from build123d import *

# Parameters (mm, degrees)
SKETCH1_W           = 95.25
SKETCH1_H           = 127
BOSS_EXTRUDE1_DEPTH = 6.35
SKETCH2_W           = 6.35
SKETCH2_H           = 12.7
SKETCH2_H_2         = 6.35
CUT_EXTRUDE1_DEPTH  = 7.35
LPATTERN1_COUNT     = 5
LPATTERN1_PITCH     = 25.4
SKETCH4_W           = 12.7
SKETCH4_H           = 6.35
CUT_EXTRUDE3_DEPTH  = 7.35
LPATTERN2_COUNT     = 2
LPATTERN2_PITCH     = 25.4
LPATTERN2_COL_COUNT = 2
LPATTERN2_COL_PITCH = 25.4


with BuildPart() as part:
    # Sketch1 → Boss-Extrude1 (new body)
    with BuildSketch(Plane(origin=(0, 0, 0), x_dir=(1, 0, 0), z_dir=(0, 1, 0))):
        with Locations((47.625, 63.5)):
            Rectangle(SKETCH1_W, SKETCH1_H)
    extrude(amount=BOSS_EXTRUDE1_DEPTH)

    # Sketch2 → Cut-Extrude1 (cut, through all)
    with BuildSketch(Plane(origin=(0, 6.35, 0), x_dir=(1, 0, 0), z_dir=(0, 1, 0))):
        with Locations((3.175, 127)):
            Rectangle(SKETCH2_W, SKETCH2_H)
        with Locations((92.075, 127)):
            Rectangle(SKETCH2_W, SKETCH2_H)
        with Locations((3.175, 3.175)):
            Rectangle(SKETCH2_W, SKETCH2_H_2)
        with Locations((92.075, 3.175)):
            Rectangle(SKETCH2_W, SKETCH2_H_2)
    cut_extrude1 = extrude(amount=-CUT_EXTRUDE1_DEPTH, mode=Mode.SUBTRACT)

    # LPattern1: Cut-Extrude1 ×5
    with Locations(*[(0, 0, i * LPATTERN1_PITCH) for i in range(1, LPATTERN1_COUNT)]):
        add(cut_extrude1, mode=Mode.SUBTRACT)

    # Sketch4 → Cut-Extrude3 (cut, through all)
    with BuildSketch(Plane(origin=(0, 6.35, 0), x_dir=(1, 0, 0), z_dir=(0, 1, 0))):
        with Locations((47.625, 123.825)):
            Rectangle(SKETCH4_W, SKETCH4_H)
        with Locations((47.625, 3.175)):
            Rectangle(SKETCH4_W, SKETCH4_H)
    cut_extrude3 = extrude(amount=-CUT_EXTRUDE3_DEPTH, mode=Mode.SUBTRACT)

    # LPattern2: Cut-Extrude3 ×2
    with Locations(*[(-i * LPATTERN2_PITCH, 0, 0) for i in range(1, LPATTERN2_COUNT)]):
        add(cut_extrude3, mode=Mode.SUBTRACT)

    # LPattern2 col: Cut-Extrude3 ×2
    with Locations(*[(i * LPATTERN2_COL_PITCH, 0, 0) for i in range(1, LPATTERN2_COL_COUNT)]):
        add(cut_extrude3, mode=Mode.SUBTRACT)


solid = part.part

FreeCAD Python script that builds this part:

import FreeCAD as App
import Part
import Sketcher
Q = App.Units.Quantity


def add_polygon(sketch, points):
    """Adds a closed chain of lines whose ends are joined by coincident constraints."""
    first, n = sketch.GeometryCount, len(points)
    for a, b in zip(points, points[1:] + points[:1]):
        sketch.addGeometry(Part.LineSegment(App.Vector(*a, 0), App.Vector(*b, 0)), False)
    for i in range(n):
        sketch.addConstraint(Sketcher.Constraint("Coincident", first + i, 2, first + (i + 1) % n, 1))

doc = App.newDocument("Part")
body = doc.addObject("PartDesign::Body", "Body")

sketch1 = body.newObject("Sketcher::SketchObject", "Sketch")
sketch1.AttachmentSupport = (doc.getObject("XZ_Plane"), [""])
sketch1.MapMode = "FlatFace"
add_polygon(sketch1, [(0, -127), (0, 0), (95.25, 0), (95.25, -127)])
sketch1.addConstraint(Sketcher.Constraint("Vertical", 0))
sketch1.addConstraint(Sketcher.Constraint("Horizontal", 1))
sketch1.addConstraint(Sketcher.Constraint("Vertical", 2))
sketch1.addConstraint(Sketcher.Constraint("Horizontal", 3))
sketch1.addConstraint(Sketcher.Constraint("Coincident", 0, 2, -1, 1))
sketch1.addConstraint(Sketcher.Constraint("DistanceY", 0, 1, 0, 2, Q("5 in")))
sketch1.addConstraint(Sketcher.Constraint("DistanceX", 1, 1, 1, 2, Q("3.75 in")))
pad1 = body.newObject("PartDesign::Pad", "Pad")
pad1.Profile = sketch1
pad1.Length = Q("0.25 in")
pad1.Reversed = True

sketch2 = body.newObject("Sketcher::SketchObject", "Sketch001")
sketch2.AttachmentSupport = (doc.getObject("XZ_Plane"), [""])
sketch2.MapMode = "FlatFace"
sketch2.AttachmentOffset = App.Placement(App.Vector(0, 0, -0.25 * 25.4), App.Rotation())
add_polygon(sketch2, [(0, -133.35), (0, -120.65), (6.35, -120.65), (6.35, -133.35)])
add_polygon(sketch2, [(88.9, -133.35), (88.9, -120.65), (95.25, -120.65), (95.25, -133.35)])
add_polygon(sketch2, [(0, -6.35), (0, 0), (6.35, 0), (6.35, -6.35)])
add_polygon(sketch2, [(88.9, -6.35), (88.9, 0), (95.25, 0), (95.25, -6.35)])
sketch2.addConstraint(Sketcher.Constraint("Vertical", 0))
sketch2.addConstraint(Sketcher.Constraint("Horizontal", 1))
sketch2.addConstraint(Sketcher.Constraint("Vertical", 2))
sketch2.addConstraint(Sketcher.Constraint("Horizontal", 3))
sketch2.addConstraint(Sketcher.Constraint("Vertical", 4))
sketch2.addConstraint(Sketcher.Constraint("Horizontal", 5))
sketch2.addConstraint(Sketcher.Constraint("Vertical", 6))
sketch2.addConstraint(Sketcher.Constraint("Horizontal", 7))
sketch2.addConstraint(Sketcher.Constraint("Vertical", 8))
sketch2.addConstraint(Sketcher.Constraint("Horizontal", 9))
sketch2.addConstraint(Sketcher.Constraint("Vertical", 10))
sketch2.addConstraint(Sketcher.Constraint("Horizontal", 11))
sketch2.addConstraint(Sketcher.Constraint("Vertical", 12))
sketch2.addConstraint(Sketcher.Constraint("Horizontal", 13))
sketch2.addConstraint(Sketcher.Constraint("Vertical", 14))
sketch2.addConstraint(Sketcher.Constraint("Horizontal", 15))
sketch2.addConstraint(Sketcher.Constraint("Coincident", 8, 2, -1, 1))
sketch2.addConstraint(Sketcher.Constraint("PointOnObject", 0, 2, -2))
sketch2.addConstraint(Sketcher.Constraint("PointOnObject", 12, 2, -1))
sketch2.addConstraint(Sketcher.Constraint("Horizontal", 1, 2, 4, 2))
sketch2.addConstraint(Sketcher.Constraint("Horizontal", 3, 2, 6, 2))
sketch2.addConstraint(Sketcher.Constraint("Horizontal", 11, 2, 14, 2))
sketch2.addConstraint(Sketcher.Constraint("Vertical", 2, 2, 9, 2))
sketch2.addConstraint(Sketcher.Constraint("Vertical", 7, 2, 12, 2))
sketch2.addConstraint(Sketcher.Constraint("Vertical", 6, 2, 13, 2))
sketch2.addConstraint(Sketcher.Constraint("Equal", 3, 5))
sketch2.addConstraint(Sketcher.Constraint("Equal", 15, 8))
sketch2.addConstraint(Sketcher.Constraint("DistanceY", 0, 1, 0, 2, Q("0.5 in")))
sketch2.addConstraint(Sketcher.Constraint("DistanceY", 2, 2, 10, 2, Q("5 in")))
sketch2.addConstraint(Sketcher.Constraint("DistanceX", 1, 1, 1, 2, Q("0.25 in")))
sketch2.addConstraint(Sketcher.Constraint("DistanceX", -1, 1, 4, 2, Q("3.5 in")))
pocket1 = body.newObject("PartDesign::Pocket", "Pocket")
pocket1.Profile = sketch2
pocket1.Type = "ThroughAll"
pocket1.Reversed = True
doc.recompute()

linearpattern = body.newObject("PartDesign::LinearPattern", "LinearPattern")
linearpattern.Originals = [pocket1]
linearpattern.Direction = (doc.getObject("Z_Axis"), [""])
linearpattern.Mode = "offset"
linearpattern.Offset = Q("1 in")
linearpattern.Occurrences = 5
body.Tip = linearpattern

sketch3 = body.newObject("Sketcher::SketchObject", "Sketch002")
sketch3.AttachmentSupport = (doc.getObject("XZ_Plane"), [""])
sketch3.MapMode = "FlatFace"
sketch3.AttachmentOffset = App.Placement(App.Vector(0, 0, -0.25 * 25.4), App.Rotation())
add_polygon(sketch3, [(41.275, -127), (41.275, -120.65), (53.975, -120.65), (53.975, -127)])
add_polygon(sketch3, [(41.275, -6.35), (41.275, 0), (53.975, 0), (53.975, -6.35)])
sketch3.addConstraint(Sketcher.Constraint("Vertical", 0))
sketch3.addConstraint(Sketcher.Constraint("Horizontal", 1))
sketch3.addConstraint(Sketcher.Constraint("Vertical", 2))
sketch3.addConstraint(Sketcher.Constraint("Horizontal", 3))
sketch3.addConstraint(Sketcher.Constraint("Vertical", 4))
sketch3.addConstraint(Sketcher.Constraint("Horizontal", 5))
sketch3.addConstraint(Sketcher.Constraint("Vertical", 6))
sketch3.addConstraint(Sketcher.Constraint("Horizontal", 7))
sketch3.addConstraint(Sketcher.Constraint("PointOnObject", 4, 2, -1))
sketch3.addConstraint(Sketcher.Constraint("Vertical", 3, 2, 4, 2))
sketch3.addConstraint(Sketcher.Constraint("Vertical", 2, 2, 5, 2))
sketch3.addConstraint(Sketcher.Constraint("Equal", 2, 4))
sketch3.addConstraint(Sketcher.Constraint("DistanceX", 1, 1, 1, 2, Q("0.5 in")))
sketch3.addConstraint(Sketcher.Constraint("DistanceY", 2, 2, -1, 1, Q("5 in")))
sketch3.addConstraint(Sketcher.Constraint("DistanceY", 0, 1, 0, 2, Q("0.25 in")))
sketch3.addConstraint(Sketcher.Constraint("DistanceX", -1, 1, 0, 2, Q("1.625 in")))
pocket2 = body.newObject("PartDesign::Pocket", "Pocket001")
pocket2.Profile = sketch3
pocket2.Type = "ThroughAll"
pocket2.Reversed = True
doc.recompute()

linearpattern2 = body.newObject("PartDesign::LinearPattern", "LinearPattern001")
linearpattern2.Originals = [pocket2]
linearpattern2.Direction = (doc.getObject("X_Axis"), [""])
linearpattern2.Mode = "offset"
linearpattern2.Offset = Q("1 in")
linearpattern2.Occurrences = 2
linearpattern2.Reversed = True
body.Tip = linearpattern2
doc.recompute()

linearpattern3 = body.newObject("PartDesign::LinearPattern", "LinearPattern002")
linearpattern3.Originals = [pocket2]
linearpattern3.Direction = (doc.getObject("X_Axis"), [""])
linearpattern3.Mode = "offset"
linearpattern3.Offset = Q("1 in")
linearpattern3.Occurrences = 2
body.Tip = linearpattern3

doc.recompute()
